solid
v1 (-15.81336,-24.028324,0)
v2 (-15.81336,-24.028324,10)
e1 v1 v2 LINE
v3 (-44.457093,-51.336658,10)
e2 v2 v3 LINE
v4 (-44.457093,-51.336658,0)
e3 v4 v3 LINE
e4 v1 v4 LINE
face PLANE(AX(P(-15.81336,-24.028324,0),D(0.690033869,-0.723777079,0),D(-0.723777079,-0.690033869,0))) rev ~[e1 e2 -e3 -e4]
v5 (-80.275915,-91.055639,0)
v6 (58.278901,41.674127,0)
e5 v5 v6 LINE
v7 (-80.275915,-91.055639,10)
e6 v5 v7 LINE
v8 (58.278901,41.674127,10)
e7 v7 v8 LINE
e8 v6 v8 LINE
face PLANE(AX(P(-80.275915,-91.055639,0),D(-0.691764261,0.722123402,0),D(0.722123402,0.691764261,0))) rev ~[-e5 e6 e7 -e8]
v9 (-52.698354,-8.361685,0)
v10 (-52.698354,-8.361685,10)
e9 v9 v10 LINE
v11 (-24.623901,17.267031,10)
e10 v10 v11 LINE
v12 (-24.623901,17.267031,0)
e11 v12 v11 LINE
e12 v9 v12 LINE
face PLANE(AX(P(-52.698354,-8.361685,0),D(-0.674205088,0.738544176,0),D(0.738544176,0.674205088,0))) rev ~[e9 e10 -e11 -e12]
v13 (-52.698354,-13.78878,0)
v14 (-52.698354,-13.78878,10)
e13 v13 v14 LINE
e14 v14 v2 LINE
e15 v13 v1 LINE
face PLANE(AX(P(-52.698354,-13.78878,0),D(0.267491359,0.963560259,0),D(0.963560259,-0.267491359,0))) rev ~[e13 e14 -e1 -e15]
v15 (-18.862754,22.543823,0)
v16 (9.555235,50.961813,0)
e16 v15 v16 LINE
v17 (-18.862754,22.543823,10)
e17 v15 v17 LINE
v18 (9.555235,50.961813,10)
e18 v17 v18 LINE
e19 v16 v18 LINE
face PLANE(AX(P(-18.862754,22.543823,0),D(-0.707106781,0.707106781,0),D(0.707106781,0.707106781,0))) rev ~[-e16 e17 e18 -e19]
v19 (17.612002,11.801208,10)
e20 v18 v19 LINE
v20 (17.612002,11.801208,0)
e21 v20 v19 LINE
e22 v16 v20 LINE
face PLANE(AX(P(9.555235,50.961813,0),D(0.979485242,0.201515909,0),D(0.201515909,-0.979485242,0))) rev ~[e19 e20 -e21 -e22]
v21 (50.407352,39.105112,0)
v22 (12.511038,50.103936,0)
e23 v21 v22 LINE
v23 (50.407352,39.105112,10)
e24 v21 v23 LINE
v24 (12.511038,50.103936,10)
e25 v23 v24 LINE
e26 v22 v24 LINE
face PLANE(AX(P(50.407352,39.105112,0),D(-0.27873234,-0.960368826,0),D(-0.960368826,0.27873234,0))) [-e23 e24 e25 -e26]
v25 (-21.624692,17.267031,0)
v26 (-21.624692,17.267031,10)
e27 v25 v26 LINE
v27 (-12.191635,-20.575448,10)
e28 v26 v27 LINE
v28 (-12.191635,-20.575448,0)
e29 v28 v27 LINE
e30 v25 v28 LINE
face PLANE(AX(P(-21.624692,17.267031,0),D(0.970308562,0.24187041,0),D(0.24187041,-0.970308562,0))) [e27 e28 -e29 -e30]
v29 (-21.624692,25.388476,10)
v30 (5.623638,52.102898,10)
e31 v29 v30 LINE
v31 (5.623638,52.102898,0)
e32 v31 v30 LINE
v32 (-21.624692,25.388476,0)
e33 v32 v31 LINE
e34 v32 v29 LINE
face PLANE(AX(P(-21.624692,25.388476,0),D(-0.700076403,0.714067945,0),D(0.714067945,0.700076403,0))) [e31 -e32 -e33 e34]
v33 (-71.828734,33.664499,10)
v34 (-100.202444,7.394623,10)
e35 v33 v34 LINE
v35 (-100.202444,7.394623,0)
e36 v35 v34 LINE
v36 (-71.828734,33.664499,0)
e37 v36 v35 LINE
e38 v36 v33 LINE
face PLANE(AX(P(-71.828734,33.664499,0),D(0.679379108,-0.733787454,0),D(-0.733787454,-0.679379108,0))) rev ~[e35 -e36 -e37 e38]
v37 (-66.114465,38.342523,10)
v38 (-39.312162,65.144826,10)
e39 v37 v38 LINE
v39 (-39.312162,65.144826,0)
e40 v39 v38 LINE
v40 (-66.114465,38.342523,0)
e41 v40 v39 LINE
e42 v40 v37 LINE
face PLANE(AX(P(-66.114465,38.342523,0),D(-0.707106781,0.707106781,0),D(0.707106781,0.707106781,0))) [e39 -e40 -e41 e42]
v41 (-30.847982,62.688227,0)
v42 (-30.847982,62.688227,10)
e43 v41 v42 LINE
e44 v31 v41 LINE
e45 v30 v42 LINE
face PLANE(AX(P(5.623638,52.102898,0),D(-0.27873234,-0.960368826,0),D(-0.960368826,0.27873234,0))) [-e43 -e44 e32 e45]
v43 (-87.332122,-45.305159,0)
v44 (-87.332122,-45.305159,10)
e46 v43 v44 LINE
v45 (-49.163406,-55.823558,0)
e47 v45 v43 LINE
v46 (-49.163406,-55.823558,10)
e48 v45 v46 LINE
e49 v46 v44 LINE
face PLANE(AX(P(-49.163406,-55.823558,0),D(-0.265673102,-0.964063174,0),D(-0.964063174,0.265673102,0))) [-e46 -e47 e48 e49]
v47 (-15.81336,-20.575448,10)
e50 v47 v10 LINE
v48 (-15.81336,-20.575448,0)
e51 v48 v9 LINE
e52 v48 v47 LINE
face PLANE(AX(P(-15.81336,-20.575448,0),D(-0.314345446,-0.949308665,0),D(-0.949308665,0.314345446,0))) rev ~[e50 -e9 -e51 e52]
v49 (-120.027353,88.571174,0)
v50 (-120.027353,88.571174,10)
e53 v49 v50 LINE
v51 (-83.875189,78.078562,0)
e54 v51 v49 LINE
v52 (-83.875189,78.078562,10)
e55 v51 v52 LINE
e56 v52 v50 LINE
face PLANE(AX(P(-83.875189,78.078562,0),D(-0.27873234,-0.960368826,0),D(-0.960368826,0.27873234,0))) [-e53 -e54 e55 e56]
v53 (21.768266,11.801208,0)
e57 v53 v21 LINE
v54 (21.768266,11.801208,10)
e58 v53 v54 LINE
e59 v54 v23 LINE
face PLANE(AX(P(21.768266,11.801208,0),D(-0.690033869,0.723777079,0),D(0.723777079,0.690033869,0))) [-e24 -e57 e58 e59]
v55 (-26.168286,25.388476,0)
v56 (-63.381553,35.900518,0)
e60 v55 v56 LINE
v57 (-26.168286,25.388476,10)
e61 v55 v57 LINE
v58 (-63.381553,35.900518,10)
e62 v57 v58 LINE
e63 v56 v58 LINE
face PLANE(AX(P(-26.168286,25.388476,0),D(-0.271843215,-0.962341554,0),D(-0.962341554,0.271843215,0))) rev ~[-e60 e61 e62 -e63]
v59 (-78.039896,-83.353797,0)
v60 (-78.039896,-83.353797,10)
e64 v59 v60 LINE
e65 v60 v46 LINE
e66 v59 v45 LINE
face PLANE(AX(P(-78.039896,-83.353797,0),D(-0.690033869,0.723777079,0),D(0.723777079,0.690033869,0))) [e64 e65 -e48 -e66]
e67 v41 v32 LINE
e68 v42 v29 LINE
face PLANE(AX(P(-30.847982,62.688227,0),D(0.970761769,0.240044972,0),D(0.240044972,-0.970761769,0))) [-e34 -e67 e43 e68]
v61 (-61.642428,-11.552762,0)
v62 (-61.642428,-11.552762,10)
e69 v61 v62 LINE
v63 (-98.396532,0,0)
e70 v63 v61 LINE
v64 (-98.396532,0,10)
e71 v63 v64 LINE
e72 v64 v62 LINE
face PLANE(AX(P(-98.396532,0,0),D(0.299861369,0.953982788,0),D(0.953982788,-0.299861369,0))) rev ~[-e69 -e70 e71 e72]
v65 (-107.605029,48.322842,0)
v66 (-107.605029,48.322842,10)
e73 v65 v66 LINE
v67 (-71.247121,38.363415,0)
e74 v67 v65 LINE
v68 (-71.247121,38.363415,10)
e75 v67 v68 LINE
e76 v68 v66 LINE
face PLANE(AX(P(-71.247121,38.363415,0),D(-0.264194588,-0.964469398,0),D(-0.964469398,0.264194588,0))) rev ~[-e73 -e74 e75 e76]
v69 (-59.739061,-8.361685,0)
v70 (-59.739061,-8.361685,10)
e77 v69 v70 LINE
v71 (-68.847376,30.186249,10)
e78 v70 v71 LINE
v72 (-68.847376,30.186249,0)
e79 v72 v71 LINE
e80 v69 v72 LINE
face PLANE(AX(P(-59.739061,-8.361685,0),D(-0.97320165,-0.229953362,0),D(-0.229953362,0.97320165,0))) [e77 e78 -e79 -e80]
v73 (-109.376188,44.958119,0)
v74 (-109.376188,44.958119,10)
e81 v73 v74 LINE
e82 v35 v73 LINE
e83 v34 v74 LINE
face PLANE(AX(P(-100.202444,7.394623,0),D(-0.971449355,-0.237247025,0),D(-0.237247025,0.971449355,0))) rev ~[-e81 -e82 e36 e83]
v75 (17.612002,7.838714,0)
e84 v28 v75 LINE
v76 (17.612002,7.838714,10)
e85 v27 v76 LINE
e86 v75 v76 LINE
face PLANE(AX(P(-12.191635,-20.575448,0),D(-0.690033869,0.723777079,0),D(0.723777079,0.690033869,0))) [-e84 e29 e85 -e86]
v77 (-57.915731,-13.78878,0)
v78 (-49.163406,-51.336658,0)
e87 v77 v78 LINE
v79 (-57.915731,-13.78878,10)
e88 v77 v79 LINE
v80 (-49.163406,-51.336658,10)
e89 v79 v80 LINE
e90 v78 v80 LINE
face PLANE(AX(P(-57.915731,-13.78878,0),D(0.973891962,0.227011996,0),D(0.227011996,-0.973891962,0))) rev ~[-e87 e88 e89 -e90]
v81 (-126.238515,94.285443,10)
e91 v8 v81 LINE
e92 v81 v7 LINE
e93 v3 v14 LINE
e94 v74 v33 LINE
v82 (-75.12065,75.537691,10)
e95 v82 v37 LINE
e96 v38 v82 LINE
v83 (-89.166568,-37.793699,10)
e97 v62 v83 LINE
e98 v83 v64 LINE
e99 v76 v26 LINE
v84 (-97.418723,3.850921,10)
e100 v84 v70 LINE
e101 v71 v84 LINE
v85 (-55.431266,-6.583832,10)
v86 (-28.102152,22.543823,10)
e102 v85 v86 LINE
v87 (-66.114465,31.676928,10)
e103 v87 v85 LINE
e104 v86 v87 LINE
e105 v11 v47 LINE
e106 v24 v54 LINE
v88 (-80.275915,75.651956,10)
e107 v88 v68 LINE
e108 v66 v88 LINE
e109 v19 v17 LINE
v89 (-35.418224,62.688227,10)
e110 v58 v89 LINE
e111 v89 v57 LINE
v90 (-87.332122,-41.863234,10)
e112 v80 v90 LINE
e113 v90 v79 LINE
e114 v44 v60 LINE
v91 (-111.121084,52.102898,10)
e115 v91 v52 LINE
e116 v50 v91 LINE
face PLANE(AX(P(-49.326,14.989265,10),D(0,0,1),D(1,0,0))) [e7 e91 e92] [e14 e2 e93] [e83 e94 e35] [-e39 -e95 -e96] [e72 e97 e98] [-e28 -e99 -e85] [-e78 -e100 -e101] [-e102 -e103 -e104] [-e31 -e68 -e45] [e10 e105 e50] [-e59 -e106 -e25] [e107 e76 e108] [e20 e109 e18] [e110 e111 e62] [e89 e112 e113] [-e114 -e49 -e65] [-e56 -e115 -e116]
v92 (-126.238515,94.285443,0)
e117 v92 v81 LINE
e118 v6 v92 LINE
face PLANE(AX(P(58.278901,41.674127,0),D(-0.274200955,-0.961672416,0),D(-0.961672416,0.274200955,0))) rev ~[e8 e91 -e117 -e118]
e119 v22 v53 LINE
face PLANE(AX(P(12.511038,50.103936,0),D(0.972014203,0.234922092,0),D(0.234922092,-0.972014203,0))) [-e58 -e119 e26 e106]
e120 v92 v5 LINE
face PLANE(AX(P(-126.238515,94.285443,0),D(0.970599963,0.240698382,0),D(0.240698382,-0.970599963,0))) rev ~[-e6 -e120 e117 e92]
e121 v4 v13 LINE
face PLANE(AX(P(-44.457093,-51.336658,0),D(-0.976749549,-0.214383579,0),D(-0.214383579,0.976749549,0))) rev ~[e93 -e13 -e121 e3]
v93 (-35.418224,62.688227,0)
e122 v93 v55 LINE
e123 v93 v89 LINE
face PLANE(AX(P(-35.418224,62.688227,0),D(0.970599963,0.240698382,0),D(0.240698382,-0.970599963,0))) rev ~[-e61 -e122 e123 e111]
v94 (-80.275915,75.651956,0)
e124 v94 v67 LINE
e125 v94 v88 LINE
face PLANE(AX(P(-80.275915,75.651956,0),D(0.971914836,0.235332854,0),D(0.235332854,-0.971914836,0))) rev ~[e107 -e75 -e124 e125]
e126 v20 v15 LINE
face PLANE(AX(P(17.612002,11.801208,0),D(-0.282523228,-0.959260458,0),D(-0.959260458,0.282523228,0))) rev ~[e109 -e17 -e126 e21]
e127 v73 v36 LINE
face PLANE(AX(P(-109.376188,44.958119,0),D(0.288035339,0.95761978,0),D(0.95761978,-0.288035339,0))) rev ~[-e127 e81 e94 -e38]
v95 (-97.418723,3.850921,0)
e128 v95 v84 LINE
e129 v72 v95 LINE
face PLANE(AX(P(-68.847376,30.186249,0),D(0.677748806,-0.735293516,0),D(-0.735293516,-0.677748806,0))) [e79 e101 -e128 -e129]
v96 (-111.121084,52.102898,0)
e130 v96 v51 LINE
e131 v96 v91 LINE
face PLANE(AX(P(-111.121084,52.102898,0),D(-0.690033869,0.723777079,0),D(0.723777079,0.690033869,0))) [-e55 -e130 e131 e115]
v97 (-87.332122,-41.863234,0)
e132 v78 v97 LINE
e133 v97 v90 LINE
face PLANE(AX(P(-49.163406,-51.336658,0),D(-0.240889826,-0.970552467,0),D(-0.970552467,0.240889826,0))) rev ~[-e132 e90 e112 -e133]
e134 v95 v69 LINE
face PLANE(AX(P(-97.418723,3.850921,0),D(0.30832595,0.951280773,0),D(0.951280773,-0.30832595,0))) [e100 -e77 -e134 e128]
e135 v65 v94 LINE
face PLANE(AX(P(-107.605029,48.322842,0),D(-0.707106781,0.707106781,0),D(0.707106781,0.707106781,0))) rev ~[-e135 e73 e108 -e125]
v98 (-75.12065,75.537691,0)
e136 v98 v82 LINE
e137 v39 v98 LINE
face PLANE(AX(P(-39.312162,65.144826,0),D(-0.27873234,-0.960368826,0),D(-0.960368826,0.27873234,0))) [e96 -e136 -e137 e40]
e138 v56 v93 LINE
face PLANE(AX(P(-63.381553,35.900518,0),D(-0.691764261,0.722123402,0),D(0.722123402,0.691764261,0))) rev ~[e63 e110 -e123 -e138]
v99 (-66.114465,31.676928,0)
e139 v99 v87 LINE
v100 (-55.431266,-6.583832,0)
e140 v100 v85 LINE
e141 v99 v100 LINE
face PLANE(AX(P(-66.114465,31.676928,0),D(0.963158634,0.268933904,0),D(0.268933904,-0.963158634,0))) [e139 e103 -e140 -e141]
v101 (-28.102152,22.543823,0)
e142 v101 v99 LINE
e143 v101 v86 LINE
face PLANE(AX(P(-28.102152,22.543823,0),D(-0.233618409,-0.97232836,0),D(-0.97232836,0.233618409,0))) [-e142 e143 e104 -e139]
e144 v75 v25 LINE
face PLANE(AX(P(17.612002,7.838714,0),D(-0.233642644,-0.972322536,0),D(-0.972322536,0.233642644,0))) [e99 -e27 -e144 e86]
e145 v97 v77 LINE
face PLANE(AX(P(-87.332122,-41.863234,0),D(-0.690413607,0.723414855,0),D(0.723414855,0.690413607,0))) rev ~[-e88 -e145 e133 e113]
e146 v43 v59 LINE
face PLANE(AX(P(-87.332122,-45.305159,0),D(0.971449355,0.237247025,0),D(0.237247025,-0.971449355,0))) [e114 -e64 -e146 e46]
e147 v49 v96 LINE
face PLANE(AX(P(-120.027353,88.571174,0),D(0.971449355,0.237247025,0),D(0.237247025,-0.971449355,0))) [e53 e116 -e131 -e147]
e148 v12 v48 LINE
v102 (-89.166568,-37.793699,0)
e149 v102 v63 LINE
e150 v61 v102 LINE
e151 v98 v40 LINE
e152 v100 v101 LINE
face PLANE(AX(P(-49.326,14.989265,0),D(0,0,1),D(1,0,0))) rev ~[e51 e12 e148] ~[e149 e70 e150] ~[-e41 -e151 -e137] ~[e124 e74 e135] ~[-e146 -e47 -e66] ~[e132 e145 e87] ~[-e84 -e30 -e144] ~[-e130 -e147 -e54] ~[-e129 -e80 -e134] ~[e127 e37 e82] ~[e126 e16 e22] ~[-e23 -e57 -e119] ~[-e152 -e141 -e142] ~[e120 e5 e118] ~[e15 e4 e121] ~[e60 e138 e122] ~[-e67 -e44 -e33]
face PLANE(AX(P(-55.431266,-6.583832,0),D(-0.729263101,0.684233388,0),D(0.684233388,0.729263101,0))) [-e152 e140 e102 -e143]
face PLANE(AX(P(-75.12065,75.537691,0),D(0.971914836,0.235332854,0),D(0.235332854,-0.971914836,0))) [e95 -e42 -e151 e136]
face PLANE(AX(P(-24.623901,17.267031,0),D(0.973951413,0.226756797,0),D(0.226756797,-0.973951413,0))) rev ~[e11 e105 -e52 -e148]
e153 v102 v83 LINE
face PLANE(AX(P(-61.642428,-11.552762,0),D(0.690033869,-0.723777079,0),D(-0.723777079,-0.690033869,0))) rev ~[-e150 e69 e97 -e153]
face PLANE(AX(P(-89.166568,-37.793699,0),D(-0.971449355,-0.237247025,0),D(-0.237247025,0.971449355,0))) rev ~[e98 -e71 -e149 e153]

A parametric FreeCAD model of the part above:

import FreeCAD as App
import Part
import Sketcher
Q = App.Units.Quantity


def add_polygon(sketch, points):
    """Adds a closed chain of lines whose ends are joined by coincident constraints."""
    first, n = sketch.GeometryCount, len(points)
    for a, b in zip(points, points[1:] + points[:1]):
        sketch.addGeometry(Part.LineSegment(App.Vector(*a, 0), App.Vector(*b, 0)), False)
    for i in range(n):
        sketch.addConstraint(Sketcher.Constraint("Coincident", first + i, 2, first + (i + 1) % n, 1))

doc = App.newDocument("Part")
params = doc.addObject("Spreadsheet::Sheet", "Params")
for row, (alias, value) in enumerate([
    ("pad1_length", "10 mm"),
], start=1):
    params.set(f"A{row}", alias)
    params.set(f"B{row}", "=" + value)
    params.setAlias(f"B{row}", alias)

body = doc.addObject("PartDesign::Body", "Body")

# Sketch on XY plane
sketch1 = body.newObject("Sketcher::SketchObject", "Sketch")
sketch1.AttachmentSupport = (doc.getObject("XY_Plane"), [""])
sketch1.MapMode = "FlatFace"
add_polygon(sketch1, [(-126.238515, 94.285443), (-80.275915, -91.055639), (58.278901, 41.674127)])  # lines 0-2
add_polygon(sketch1, [(-49.163406, -55.823558), (-78.039896, -83.353797), (-87.332122, -45.305159)])  # lines 3-5
add_polygon(sketch1, [(-89.166568, -37.793699), (-98.396532, 0), (-61.642428, -11.552762)])  # lines 6-8
add_polygon(sketch1, [(-87.332122, -41.863234), (-57.915731, -13.78878), (-49.163406, -51.336658)])  # lines 9-11
add_polygon(sketch1, [(-15.81336, -24.028324), (-44.457093, -51.336658), (-52.698354, -13.78878)])  # lines 12-14
add_polygon(sketch1, [(-15.81336, -20.575448), (-52.698354, -8.361685), (-24.623901, 17.267031)])  # lines 15-17
add_polygon(sketch1, [(-12.191635, -20.575448), (-21.624692, 17.267031), (17.612002, 7.838714)])  # lines 18-20
add_polygon(sketch1, [(-97.418723, 3.850921), (-68.847376, 30.186249), (-59.739061, -8.361685)])  # lines 21-23
add_polygon(sketch1, [(-100.202444, 7.394623), (-109.376188, 44.958119), (-71.828734, 33.664499)])  # lines 24-26
add_polygon(sketch1, [(-55.431266, -6.583832), (-66.114465, 31.676928), (-28.102152, 22.543823)])  # lines 27-29
add_polygon(sketch1, [(-26.168286, 25.388476), (-63.381553, 35.900518), (-35.418224, 62.688227)])  # lines 30-32
add_polygon(sketch1, [(-71.247121, 38.363415), (-107.605029, 48.322842), (-80.275915, 75.651956)])  # lines 33-35
add_polygon(sketch1, [(-111.121084, 52.102898), (-120.027353, 88.571174), (-83.875189, 78.078562)])  # lines 36-38
add_polygon(sketch1, [(-66.114465, 38.342523), (-75.12065, 75.537691), (-39.312162, 65.144826)])  # lines 39-41
add_polygon(sketch1, [(17.612002, 11.801208), (-18.862754, 22.543823), (9.555235, 50.961813)])  # lines 42-44
add_polygon(sketch1, [(-21.624692, 25.388476), (-30.847982, 62.688227), (5.623638, 52.102898)])  # lines 45-47
add_polygon(sketch1, [(21.768266, 11.801208), (12.511038, 50.103936), (50.407352, 39.105112)])  # lines 48-50
sketch1.addConstraint(Sketcher.Constraint("PointOnObject", 6, 2, -1))
sketch1.addConstraint(Sketcher.Constraint("Parallel", 4, 6))
sketch1.addConstraint(Sketcher.Constraint("Parallel", 3, 8))
sketch1.addConstraint(Sketcher.Constraint("Parallel", 8, 12))
sketch1.addConstraint(Sketcher.Constraint("Parallel", 12, 20))
sketch1.addConstraint(Sketcher.Constraint("Parallel", 6, 24))
sketch1.addConstraint(Sketcher.Constraint("Parallel", 1, 31))
sketch1.addConstraint(Sketcher.Constraint("Parallel", 0, 32))
sketch1.addConstraint(Sketcher.Constraint("Parallel", 24, 36))
sketch1.addConstraint(Sketcher.Constraint("Parallel", 20, 38))
sketch1.addConstraint(Sketcher.Constraint("Parallel", 35, 39))
sketch1.addConstraint(Sketcher.Constraint("Parallel", 37, 40))
sketch1.addConstraint(Sketcher.Constraint("Parallel", 34, 41))
sketch1.addConstraint(Sketcher.Constraint("Parallel", 41, 43))
sketch1.addConstraint(Sketcher.Constraint("Parallel", 40, 46))
sketch1.addConstraint(Sketcher.Constraint("Parallel", 46, 49))
sketch1.addConstraint(Sketcher.Constraint("Parallel", 38, 50))
sketch1.addConstraint(Sketcher.Constraint("Horizontal", 10, 2, 12, 2))
sketch1.addConstraint(Sketcher.Constraint("Horizontal", 9, 2, 13, 2))
sketch1.addConstraint(Sketcher.Constraint("Horizontal", 16, 2, 18, 2))
sketch1.addConstraint(Sketcher.Constraint("Horizontal", 17, 2, 20, 2))
sketch1.addConstraint(Sketcher.Constraint("Horizontal", 15, 2, 22, 2))
sketch1.addConstraint(Sketcher.Constraint("Horizontal", 28, 2, 42, 2))
sketch1.addConstraint(Sketcher.Constraint("Horizontal", 31, 2, 45, 2))
sketch1.addConstraint(Sketcher.Constraint("Horizontal", 38, 2, 46, 2))
sketch1.addConstraint(Sketcher.Constraint("Horizontal", 32, 2, 47, 2))
sketch1.addConstraint(Sketcher.Constraint("Horizontal", 44, 2, 50, 2))
sketch1.addConstraint(Sketcher.Constraint("Vertical", 5, 2, 10, 2))
sketch1.addConstraint(Sketcher.Constraint("Vertical", 4, 2, 11, 2))
sketch1.addConstraint(Sketcher.Constraint("Vertical", 13, 2, 15, 2))
sketch1.addConstraint(Sketcher.Constraint("Vertical", 14, 2, 17, 2))
sketch1.addConstraint(Sketcher.Constraint("Vertical", 0, 2, 34, 2))
sketch1.addConstraint(Sketcher.Constraint("Vertical", 27, 2, 41, 2))
sketch1.addConstraint(Sketcher.Constraint("Vertical", 19, 2, 44, 2))
sketch1.addConstraint(Sketcher.Constraint("Vertical", 18, 2, 47, 2))
sketch1.addConstraint(Sketcher.Constraint("Equal", 1, 2))
sketch1.addConstraint(Sketcher.Constraint("Equal", 15, 17))
sketch1.addConstraint(Sketcher.Constraint("Equal", 22, 23))
sketch1.addConstraint(Sketcher.Constraint("Equal", 24, 26))
sketch1.addConstraint(Sketcher.Constraint("Equal", 37, 38))
sketch1.addConstraint(Sketcher.Constraint("Angle", 34, Q("45 deg")))
sketch1.addConstraint(Sketcher.Constraint("DistanceY", 5, 2, 2, 2, 150.109001))
sketch1.addConstraint(Sketcher.Constraint("DistanceX", 24, 2, 37, 2, 25.500999))
sketch1.addConstraint(Sketcher.Constraint("Distance", 22, 39.609401))
sketch1.addConstraint(Sketcher.Constraint("Distance", 30, 38.669501))
sketch1.addConstraint(Sketcher.Constraint("Distance", 44, 39.980801))
sketch1.addConstraint(Sketcher.Constraint("DistanceX", -1, 1, 1, 2, 58.278901))
sketch1.addConstraint(Sketcher.Constraint("DistanceY", 8, 2, -1, 1, 37.793699))
sketch1.addConstraint(Sketcher.Constraint("DistanceX", 16, 2, -1, 1, 24.623901))
sketch1.addConstraint(Sketcher.Constraint("DistanceY", -1, 1, 25, 2, 33.664499))
sketch1.addConstraint(Sketcher.Constraint("DistanceY", -1, 1, 38, 2, 52.102898))
sketch1.addConstraint(Sketcher.Constraint("DistanceX", 2, 2, 0, 2, 45.962601))
sketch1.addConstraint(Sketcher.Constraint("DistanceY", 4, 2, 2, 2, 139.590602))
sketch1.addConstraint(Sketcher.Constraint("DistanceY", 3, 2, 8, 2, 45.560099))
sketch1.addConstraint(Sketcher.Constraint("DistanceX", 6, 2, 9, 2, 40.480801))
sketch1.addConstraint(Sketcher.Constraint("DistanceY", 5, 2, 10, 2, 4.4869))
sketch1.addConstraint(Sketcher.Constraint("DistanceX", 19, 2, 1, 2, 40.666899))
sketch1.addConstraint(Sketcher.Constraint("DistanceY", 23, 2, 24, 2, 41.107199))
sketch1.addConstraint(Sketcher.Constraint("DistanceX", 30, 2, 28, 2, 35.279402))
sketch1.addConstraint(Sketcher.Constraint("DistanceY", 27, 2, 31, 2, 31.0113))
sketch1.addConstraint(Sketcher.Constraint("DistanceY", 31, 2, 40, 2, 2.456599))
sketch1.addConstraint(Sketcher.Constraint("DistanceY", 19, 2, 43, 2, 43.123098))
sketch1.addConstraint(Sketcher.Constraint("DistanceX", 46, 2, 48, 2, 6.8874))
sketch1.addConstraint(Sketcher.Constraint("DistanceY", 49, 2, 43, 2, 11.856701))
sketch1.addConstraint(Sketcher.Constraint("Distance", 0, 190.955171))
sketch1.addConstraint(Sketcher.Constraint("Distance", 3, 39.89694))
sketch1.addConstraint(Sketcher.Constraint("Distance", 4, 39.166878))
sketch1.addConstraint(Sketcher.Constraint("Distance", 5, 39.591509))
sketch1.addConstraint(Sketcher.Constraint("Distance", 7, 38.527009))
sketch1.addConstraint(Sketcher.Constraint("Distance", 9, 40.663239))
sketch1.addConstraint(Sketcher.Constraint("Distance", 10, 38.554459))
sketch1.addConstraint(Sketcher.Constraint("Distance", 18, 39.000458))
sketch1.addConstraint(Sketcher.Constraint("Distance", 19, 40.353579))
sketch1.addConstraint(Sketcher.Constraint("Distance", 28, 39.094111))
sketch1.addConstraint(Sketcher.Constraint("Distance", 36, 37.540069))
sketch1.addConstraint(Sketcher.Constraint("Distance", 41, 37.90418))
sketch1.addConstraint(Sketcher.Constraint("Distance", 42, 38.02383))
sketch1.addConstraint(Sketcher.Constraint("Distance", 46, 37.97668))
sketch1.addConstraint(Sketcher.Constraint("DistanceX", 4, 2, -1, 1, 87.332122))
sketch1.addConstraint(Sketcher.Constraint("DistanceX", 6, 2, -1, 1, 98.396532))
sketch1.addConstraint(Sketcher.Constraint("DistanceX", 14, 2, -1, 1, 15.81336))
sketch1.addConstraint(Sketcher.Constraint("DistanceY", -1, 1, 16, 2, 17.267031))
sketch1.addConstraint(Sketcher.Constraint("DistanceX", 18, 2, -1, 1, 21.624692))
sketch1.addConstraint(Sketcher.Constraint("DistanceY", -1, 1, 21, 2, 30.186249))
sketch1.addConstraint(Sketcher.Constraint("DistanceX", 22, 2, -1, 1, 59.739061))
sketch1.addConstraint(Sketcher.Constraint("DistanceY", -1, 1, 23, 2, 3.850921))
sketch1.addConstraint(Sketcher.Constraint("DistanceX", 24, 2, -1, 1, 109.376188))
sketch1.addConstraint(Sketcher.Constraint("DistanceX", 28, 2, -1, 1, 28.102152))
sketch1.addConstraint(Sketcher.Constraint("DistanceY", 29, 2, -1, 1, 6.583832))
sketch1.addConstraint(Sketcher.Constraint("DistanceX", 33, 2, -1, 1, 107.605029))
sketch1.addConstraint(Sketcher.Constraint("DistanceX", 35, 2, -1, 1, 71.247121))
sketch1.addConstraint(Sketcher.Constraint("DistanceX", 39, 2, -1, 1, 75.12065))
sketch1.addConstraint(Sketcher.Constraint("DistanceY", -1, 1, 39, 2, 75.537691))
sketch1.addConstraint(Sketcher.Constraint("DistanceX", 45, 2, -1, 1, 30.847982))
sketch1.addConstraint(Sketcher.Constraint("DistanceX", -1, 1, 49, 2, 50.407352))
sketch1.addConstraint(Sketcher.Constraint("DistanceX", 0, 2, 3, 2, 2.236018))
sketch1.addConstraint(Sketcher.Constraint("DistanceX", 4, 2, 12, 2, 42.875029))
sketch1.addConstraint(Sketcher.Constraint("DistanceX", 13, 2, 10, 2, 3.534948))
sketch1.addConstraint(Sketcher.Constraint("DistanceX", 23, 2, 25, 2, 25.589988))
sketch1.addConstraint(Sketcher.Constraint("DistanceX", 29, 2, 15, 2, 2.732911))
sketch1.addConstraint(Sketcher.Constraint("DistanceY", 27, 2, 30, 2, 4.22359))
sketch1.addConstraint(Sketcher.Constraint("DistanceY", 26, 2, 33, 2, 40.928219))
pad1 = body.newObject("PartDesign::Pad", "Pad")
pad1.Profile = sketch1
pad1.setExpression("Length", "Params.pad1_length")

doc.recompute()
